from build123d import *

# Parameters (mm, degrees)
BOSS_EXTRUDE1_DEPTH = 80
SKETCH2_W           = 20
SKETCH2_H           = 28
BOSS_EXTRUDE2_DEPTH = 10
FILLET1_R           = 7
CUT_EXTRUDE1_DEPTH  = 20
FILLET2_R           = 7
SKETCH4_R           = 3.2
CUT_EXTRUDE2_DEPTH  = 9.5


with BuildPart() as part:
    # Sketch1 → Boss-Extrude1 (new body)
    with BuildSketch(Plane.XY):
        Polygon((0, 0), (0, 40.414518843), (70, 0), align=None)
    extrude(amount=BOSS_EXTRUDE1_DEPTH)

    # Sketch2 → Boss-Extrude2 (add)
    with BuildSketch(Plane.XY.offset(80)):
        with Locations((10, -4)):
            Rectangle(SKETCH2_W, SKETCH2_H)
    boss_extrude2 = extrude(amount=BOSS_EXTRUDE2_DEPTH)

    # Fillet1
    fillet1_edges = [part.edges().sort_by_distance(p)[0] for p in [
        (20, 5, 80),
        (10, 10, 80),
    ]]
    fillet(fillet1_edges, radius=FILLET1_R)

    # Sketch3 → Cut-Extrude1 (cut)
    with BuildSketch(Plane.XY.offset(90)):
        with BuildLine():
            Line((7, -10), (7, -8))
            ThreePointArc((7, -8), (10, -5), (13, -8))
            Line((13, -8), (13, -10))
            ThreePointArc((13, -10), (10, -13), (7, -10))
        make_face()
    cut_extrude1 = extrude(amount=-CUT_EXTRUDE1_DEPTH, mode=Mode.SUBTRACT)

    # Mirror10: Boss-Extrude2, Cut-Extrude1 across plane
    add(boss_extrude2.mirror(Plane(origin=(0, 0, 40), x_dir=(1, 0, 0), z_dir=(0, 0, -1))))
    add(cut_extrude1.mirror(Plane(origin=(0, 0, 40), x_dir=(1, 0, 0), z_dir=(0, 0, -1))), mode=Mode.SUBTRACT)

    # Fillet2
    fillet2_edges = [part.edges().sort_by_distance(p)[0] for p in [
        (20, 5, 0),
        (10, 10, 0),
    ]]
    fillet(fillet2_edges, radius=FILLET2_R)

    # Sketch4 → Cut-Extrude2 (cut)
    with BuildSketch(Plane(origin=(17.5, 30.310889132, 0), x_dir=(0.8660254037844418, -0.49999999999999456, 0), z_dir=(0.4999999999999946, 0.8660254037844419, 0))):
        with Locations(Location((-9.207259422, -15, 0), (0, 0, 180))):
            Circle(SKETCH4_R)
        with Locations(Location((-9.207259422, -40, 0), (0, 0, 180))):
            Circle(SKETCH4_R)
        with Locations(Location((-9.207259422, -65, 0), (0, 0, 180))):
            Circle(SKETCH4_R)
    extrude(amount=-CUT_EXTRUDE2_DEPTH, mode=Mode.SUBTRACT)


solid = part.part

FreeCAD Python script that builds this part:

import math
import FreeCAD as App
import Part
import Sketcher
Q = App.Units.Quantity


def edges_at(feature, points):
    """Names of the edges that pass closest to the given points."""
    edges = feature.Shape.Edges
    near = lambda p: min(range(len(edges)), key=lambda i: edges[i].distToShape(Part.Vertex(*p))[0])
    return sorted({f"Edge{near(p) + 1}" for p in points})


def add_polygon(sketch, points):
    """Adds a closed chain of lines whose ends are joined by coincident constraints."""
    first, n = sketch.GeometryCount, len(points)
    for a, b in zip(points, points[1:] + points[:1]):
        sketch.addGeometry(Part.LineSegment(App.Vector(*a, 0), App.Vector(*b, 0)), False)
    for i in range(n):
        sketch.addConstraint(Sketcher.Constraint("Coincident", first + i, 2, first + (i + 1) % n, 1))

doc = App.newDocument("Part")
body = doc.addObject("PartDesign::Body", "Body")

sketch1 = doc.addObject("Sketcher::SketchObject", "Sketch")
body.addObject(sketch1)
sketch1.AttachmentSupport = (doc.XY_Plane, [""])
sketch1.MapMode = "FlatFace"
add_polygon(sketch1, [(0, 40), (0, 0), (70, 0)])
sketch1.addConstraint([
    Sketcher.Constraint("Vertical", 0),
    Sketcher.Constraint("Horizontal", 1),
    Sketcher.Constraint("Coincident", 0, 2, -1, 1),
    Sketcher.Constraint("DistanceX", 1, 1, 1, 2, 70.0),
    Sketcher.Constraint("Angle", 2, Q("150 deg")),
])
pad1 = doc.addObject("PartDesign::Pad", "Pad")
body.addObject(pad1)
pad1.Profile = sketch1
pad1.Length = 80

sketch2 = doc.addObject("Sketcher::SketchObject", "Sketch001")
body.addObject(sketch2)
sketch2.AttachmentSupport = (doc.XY_Plane, [""])
sketch2.MapMode = "FlatFace"
sketch2.AttachmentOffset = App.Placement(App.Vector(0, 0, 80), App.Rotation())
add_polygon(sketch2, [(0, 10), (0, -18), (20, -18), (20, 10)])
sketch2.addConstraint([
    Sketcher.Constraint("Vertical", 0),
    Sketcher.Constraint("Horizontal", 1),
    Sketcher.Constraint("Vertical", 2),
    Sketcher.Constraint("Horizontal", 3),
    Sketcher.Constraint("PointOnObject", 0, 2, -2),
    Sketcher.Constraint("DistanceX", 1, 1, 1, 2, 20.0),
    Sketcher.Constraint("DistanceY", 0, 2, 0, 1, 28.0),
    Sketcher.Constraint("DistanceY", 0, 2, -1, 1, 18.0),
])
pad2 = doc.addObject("PartDesign::Pad", "Pad001")
body.addObject(pad2)
pad2.Profile = sketch2
pad2.Length = 10
doc.recompute()

fillet = doc.addObject("PartDesign::Fillet", "Fillet")
body.addObject(fillet)
fillet.Base = (pad2, edges_at(pad2, [(20, 5, 80), (10, 10, 80)]))
fillet.Radius = 7

sketch3 = doc.addObject("Sketcher::SketchObject", "Sketch002")
body.addObject(sketch3)
sketch3.AttachmentSupport = (doc.XY_Plane, [""])
sketch3.MapMode = "FlatFace"
sketch3.AttachmentOffset = App.Placement(App.Vector(0, 0, 90), App.Rotation())
sketch3.addGeometry([
    Part.LineSegment(App.Vector(7, -8, 0), App.Vector(7, -10, 0)),
    Part.ArcOfCircle(Part.Circle(App.Vector(10, -10, 0), App.Vector(0, 0, 1), 3), math.radians(180), math.radians(360)),
    Part.LineSegment(App.Vector(13, -10, 0), App.Vector(13, -8, 0)),
    Part.ArcOfCircle(Part.Circle(App.Vector(10, -8, 0), App.Vector(0, 0, 1), 3), math.radians(0), math.radians(180)),
], False)
sketch3.addConstraint([
    Sketcher.Constraint("Tangent", 0, 2, 1, 1),
    Sketcher.Constraint("Tangent", 1, 2, 2, 1),
    Sketcher.Constraint("Tangent", 2, 2, 3, 1),
    Sketcher.Constraint("Tangent", 3, 2, 0, 1),
    Sketcher.Constraint("Vertical", 0),
    Sketcher.Constraint("Vertical", 2),
    Sketcher.Constraint("Radius", 1, 3.0),
    Sketcher.Constraint("DistanceY", 0, 2, 0, 1, 2.0),
    Sketcher.Constraint("DistanceX", -1, 1, 1, 3, 10.0),
    Sketcher.Constraint("DistanceY", 1, 3, -1, 1, 10.0),
])
pocket1 = doc.addObject("PartDesign::Pocket", "Pocket")
body.addObject(pocket1)
pocket1.Profile = sketch3
pocket1.Length = 20
doc.recompute()

datumplane = doc.addObject("PartDesign::Plane", "DatumPlane")
body.addObject(datumplane)
datumplane.AttachmentSupport = (doc.XY_Plane, [""])
datumplane.MapMode = "FlatFace"
datumplane.AttachmentOffset = App.Placement(App.Vector(0, 0, 40), App.Rotation())
mirrored = doc.addObject("PartDesign::Mirrored", "Mirrored")
body.addObject(mirrored)
mirrored.Originals = [pad2, pocket1]
mirrored.MirrorPlane = (datumplane, [""])
body.Tip = mirrored
doc.recompute()

fillet2 = doc.addObject("PartDesign::Fillet", "Fillet001")
body.addObject(fillet2)
fillet2.Base = (mirrored, edges_at(mirrored, [(20, 5, 0), (10, 10, 0)]))
fillet2.Radius = 7

sketch4 = doc.addObject("Sketcher::SketchObject", "Sketch003")
body.addObject(sketch4)
sketch4.Placement = App.Placement(App.Vector(17.5, 30.310889, 0), App.Rotation(App.Vector(0.866025404, -0.5, 0), App.Vector(0, 0, -1), App.Vector(0.5, 0.866025404, 0), "ZXY"))
sketch4.addGeometry([
    Part.Circle(App.Vector(-9.2, -15, 0), App.Vector(0, 0, 1), 3.2),
    Part.Circle(App.Vector(-9.2, -40, 0), App.Vector(0, 0, 1), 3.2),
    Part.Circle(App.Vector(-9.2, -65, 0), App.Vector(0, 0, 1), 3.2),
], False)
sketch4.addConstraint([
    Sketcher.Constraint("Equal", 0, 1),
    Sketcher.Constraint("Equal", 1, 2),
    Sketcher.Constraint("Vertical", 0, 3, 1, 3),
    Sketcher.Constraint("Vertical", 1, 3, 2, 3),
    Sketcher.Constraint("Diameter", 0, 6.4),
    Sketcher.Constraint("DistanceY", 0, 3, -1, 1, 15.0),
    Sketcher.Constraint("DistanceY", 1, 3, -1, 1, 40.0),
    Sketcher.Constraint("DistanceY", 2, 3, -1, 1, 65.0),
    Sketcher.Constraint("DistanceX", 0, 3, -1, 1, 9.207259),
])
pocket2 = doc.addObject("PartDesign::Pocket", "Pocket001")
body.addObject(pocket2)
pocket2.Profile = sketch4
pocket2.Length = 9.5

doc.recompute()
